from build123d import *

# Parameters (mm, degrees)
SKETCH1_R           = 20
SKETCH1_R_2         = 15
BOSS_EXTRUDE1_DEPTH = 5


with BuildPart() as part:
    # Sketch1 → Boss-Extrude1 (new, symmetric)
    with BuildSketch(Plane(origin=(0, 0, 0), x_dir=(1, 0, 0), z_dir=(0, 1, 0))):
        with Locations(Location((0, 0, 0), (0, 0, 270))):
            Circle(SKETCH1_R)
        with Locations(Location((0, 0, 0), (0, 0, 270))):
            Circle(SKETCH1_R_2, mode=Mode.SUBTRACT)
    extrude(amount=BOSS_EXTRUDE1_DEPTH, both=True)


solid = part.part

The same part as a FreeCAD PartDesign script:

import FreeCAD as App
import Part
import Sketcher

V = App.Vector
Q = App.Units.Quantity

doc = App.newDocument("Part")
body = doc.addObject("PartDesign::Body", "Body")

sketch1 = doc.addObject("Sketcher::SketchObject", "Sketch")
body.addObject(sketch1)
sketch1.AttachmentSupport = (doc.XZ_Plane, [""])
sketch1.MapMode = "FlatFace"
sketch1.addGeometry(Part.Circle(V(0, 0, 0), V(0, 0, 1), 20), False)
sketch1.addGeometry(Part.Circle(V(0, 0, 0), V(0, 0, 1), 15), False)
sketch1.addConstraint(Sketcher.Constraint("Coincident", 0, 3, -1, 1))
sketch1.addConstraint(Sketcher.Constraint("Coincident", 1, 3, -1, 1))
sketch1.addConstraint(Sketcher.Constraint("Diameter", 0, Q("40 mm")))
sketch1.addConstraint(Sketcher.Constraint("Diameter", 1, Q("30 mm")))
pad1 = doc.addObject("PartDesign::Pad", "Pad")
body.addObject(pad1)
pad1.Profile = sketch1
pad1.Length = 10
pad1.Midplane = True

doc.recompute()
